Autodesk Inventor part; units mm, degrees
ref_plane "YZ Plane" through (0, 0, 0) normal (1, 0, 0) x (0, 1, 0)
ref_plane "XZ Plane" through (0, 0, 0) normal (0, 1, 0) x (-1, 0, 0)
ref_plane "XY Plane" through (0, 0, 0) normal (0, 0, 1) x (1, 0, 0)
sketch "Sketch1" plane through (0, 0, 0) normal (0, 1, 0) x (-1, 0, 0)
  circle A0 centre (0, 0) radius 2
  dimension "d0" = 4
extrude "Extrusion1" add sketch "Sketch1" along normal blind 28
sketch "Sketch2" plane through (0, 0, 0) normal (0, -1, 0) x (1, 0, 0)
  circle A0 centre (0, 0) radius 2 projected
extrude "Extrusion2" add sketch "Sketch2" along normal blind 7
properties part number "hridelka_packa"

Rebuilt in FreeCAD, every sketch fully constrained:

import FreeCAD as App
import Part
import Sketcher

doc = App.newDocument("Part")
body = doc.addObject("PartDesign::Body", "Body")

# Sketch on XZ plane
sketch1 = body.newObject("Sketcher::SketchObject", "Sketch")
sketch1.AttachmentSupport = (doc.getObject("XZ_Plane"), [""])
sketch1.MapMode = "FlatFace"
sketch1.addGeometry(Part.Circle(App.Vector(0, 0, 0), App.Vector(0, 0, 1), 2), False)
sketch1.addConstraint([
    Sketcher.Constraint("Coincident", 0, 3, -1, 1),
    Sketcher.Constraint("Diameter", 0, 4.0),
])
pad1 = body.newObject("PartDesign::Pad", "Pad")
pad1.Profile = sketch1
pad1.Length = 28
pad1.Reversed = True

# Sketch on XZ plane
sketch2 = body.newObject("Sketcher::SketchObject", "Sketch001")
sketch2.AttachmentSupport = (doc.getObject("XZ_Plane"), [""])
sketch2.MapMode = "FlatFace"
sketch2.addGeometry(Part.Circle(App.Vector(0, 0, 0), App.Vector(0, 0, 1), 2), False)
sketch2.addConstraint([
    Sketcher.Constraint("Coincident", 0, 3, -1, 1),
    Sketcher.Constraint("Diameter", 0, 4.0),
])
pad2 = body.newObject("PartDesign::Pad", "Pad001")
pad2.Profile = sketch2
pad2.Length = 7

doc.recompute()
